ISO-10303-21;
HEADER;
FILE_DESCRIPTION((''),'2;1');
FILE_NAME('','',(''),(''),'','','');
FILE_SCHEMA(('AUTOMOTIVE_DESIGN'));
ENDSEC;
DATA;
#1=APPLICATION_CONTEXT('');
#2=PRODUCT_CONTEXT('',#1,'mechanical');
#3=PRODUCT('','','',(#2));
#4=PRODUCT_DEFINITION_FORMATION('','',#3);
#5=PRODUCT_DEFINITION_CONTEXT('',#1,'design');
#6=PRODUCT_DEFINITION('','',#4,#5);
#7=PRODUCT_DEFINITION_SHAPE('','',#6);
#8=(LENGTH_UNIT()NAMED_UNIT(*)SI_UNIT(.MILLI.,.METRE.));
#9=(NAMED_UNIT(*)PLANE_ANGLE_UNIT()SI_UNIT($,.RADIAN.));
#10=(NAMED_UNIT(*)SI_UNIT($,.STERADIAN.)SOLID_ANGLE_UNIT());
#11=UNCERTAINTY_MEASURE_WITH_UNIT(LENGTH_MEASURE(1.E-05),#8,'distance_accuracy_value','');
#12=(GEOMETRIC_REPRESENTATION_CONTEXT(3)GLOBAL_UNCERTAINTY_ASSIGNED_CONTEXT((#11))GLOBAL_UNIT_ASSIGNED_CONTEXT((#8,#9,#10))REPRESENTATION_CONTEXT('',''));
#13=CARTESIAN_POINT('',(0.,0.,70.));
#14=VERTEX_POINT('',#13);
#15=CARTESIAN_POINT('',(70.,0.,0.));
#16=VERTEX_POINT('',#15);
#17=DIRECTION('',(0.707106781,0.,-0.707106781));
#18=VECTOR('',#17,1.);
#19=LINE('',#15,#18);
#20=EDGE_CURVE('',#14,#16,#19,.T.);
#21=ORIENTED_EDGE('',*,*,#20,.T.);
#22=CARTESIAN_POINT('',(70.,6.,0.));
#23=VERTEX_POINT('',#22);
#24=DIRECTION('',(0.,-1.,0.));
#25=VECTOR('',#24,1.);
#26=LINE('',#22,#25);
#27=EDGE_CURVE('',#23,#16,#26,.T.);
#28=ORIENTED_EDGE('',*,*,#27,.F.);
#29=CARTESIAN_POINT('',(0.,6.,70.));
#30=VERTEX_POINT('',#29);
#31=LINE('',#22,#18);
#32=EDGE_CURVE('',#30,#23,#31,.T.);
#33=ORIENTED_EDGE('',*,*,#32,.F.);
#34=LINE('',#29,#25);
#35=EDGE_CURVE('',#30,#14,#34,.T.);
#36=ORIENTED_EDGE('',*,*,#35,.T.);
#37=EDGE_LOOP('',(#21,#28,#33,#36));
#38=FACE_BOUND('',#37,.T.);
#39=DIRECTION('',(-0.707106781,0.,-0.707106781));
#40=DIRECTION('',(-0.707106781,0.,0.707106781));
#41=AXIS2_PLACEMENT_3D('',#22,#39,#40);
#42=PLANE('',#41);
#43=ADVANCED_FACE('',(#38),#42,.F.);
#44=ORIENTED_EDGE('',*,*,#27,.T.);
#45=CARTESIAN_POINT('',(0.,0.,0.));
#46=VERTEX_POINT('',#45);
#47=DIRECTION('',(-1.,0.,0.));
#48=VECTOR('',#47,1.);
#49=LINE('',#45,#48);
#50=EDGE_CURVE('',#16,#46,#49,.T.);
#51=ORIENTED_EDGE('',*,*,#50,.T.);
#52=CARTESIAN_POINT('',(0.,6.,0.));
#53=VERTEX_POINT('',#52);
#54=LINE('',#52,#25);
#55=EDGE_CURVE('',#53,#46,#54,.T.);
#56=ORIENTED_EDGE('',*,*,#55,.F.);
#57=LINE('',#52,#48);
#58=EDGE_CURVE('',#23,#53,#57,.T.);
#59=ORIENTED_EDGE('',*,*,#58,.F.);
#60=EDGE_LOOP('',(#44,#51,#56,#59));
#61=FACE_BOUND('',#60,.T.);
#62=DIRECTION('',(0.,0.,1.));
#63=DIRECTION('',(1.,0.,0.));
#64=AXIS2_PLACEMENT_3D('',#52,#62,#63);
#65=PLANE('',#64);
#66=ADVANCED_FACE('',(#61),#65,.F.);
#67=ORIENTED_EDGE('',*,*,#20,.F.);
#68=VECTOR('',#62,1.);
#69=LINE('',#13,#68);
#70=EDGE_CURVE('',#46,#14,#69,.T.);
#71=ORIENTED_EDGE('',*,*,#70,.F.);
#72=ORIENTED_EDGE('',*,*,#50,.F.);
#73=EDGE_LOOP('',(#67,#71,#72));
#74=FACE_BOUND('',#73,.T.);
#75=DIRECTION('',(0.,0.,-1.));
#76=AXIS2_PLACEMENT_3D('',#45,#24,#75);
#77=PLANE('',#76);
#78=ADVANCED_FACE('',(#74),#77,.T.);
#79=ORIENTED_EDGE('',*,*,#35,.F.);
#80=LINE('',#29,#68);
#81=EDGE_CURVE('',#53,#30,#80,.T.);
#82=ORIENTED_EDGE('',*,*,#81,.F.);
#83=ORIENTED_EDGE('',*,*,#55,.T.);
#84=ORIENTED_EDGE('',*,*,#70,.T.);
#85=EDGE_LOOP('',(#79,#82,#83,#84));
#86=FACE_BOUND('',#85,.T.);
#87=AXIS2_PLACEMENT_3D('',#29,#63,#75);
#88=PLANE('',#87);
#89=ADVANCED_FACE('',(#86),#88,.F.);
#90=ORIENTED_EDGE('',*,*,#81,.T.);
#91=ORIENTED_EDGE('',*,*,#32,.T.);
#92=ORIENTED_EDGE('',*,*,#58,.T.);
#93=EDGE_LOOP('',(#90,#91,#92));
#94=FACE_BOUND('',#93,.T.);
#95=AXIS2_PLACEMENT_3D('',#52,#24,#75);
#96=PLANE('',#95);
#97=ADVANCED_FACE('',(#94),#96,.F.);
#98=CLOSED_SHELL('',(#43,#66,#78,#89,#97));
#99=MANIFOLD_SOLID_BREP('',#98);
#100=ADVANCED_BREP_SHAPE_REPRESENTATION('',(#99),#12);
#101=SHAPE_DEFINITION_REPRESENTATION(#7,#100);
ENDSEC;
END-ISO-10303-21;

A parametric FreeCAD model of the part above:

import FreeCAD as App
import Part
import Sketcher
from FreeCAD import Vector
Q = App.Units.Quantity

doc = App.newDocument("Part")
body = doc.addObject("PartDesign::Body", "Body")

sketch1 = body.newObject("Sketcher::SketchObject", "Sketch")
sketch1.AttachmentSupport = (doc.getObject("XZ_Plane"), [""])
sketch1.MapMode = "FlatFace"
sketch1.addGeometry(Part.LineSegment(Vector(70, 0, 0), Vector(0, 0, 0)), False)
sketch1.addGeometry(Part.LineSegment(Vector(0, 0, 0), Vector(0, 70, 0)), False)
sketch1.addGeometry(Part.LineSegment(Vector(0, 70, 0), Vector(70, 0, 0)), False)
sketch1.addConstraint(Sketcher.Constraint("Coincident", 0, 2, 1, 1))
sketch1.addConstraint(Sketcher.Constraint("Coincident", 1, 2, 2, 1))
sketch1.addConstraint(Sketcher.Constraint("Coincident", 2, 2, 0, 1))
sketch1.addConstraint(Sketcher.Constraint("Horizontal", 0))
sketch1.addConstraint(Sketcher.Constraint("Vertical", 1))
sketch1.addConstraint(Sketcher.Constraint("Coincident", 0, 2, -1, 1))
sketch1.addConstraint(Sketcher.Constraint("Equal", 0, 1))
sketch1.addConstraint(Sketcher.Constraint("DistanceX", 0, 2, 0, 1, Q("70 mm")))
pad1 = body.newObject("PartDesign::Pad", "Pad")
pad1.Profile = sketch1
pad1.Length = 6
pad1.Reversed = True

doc.recompute()
